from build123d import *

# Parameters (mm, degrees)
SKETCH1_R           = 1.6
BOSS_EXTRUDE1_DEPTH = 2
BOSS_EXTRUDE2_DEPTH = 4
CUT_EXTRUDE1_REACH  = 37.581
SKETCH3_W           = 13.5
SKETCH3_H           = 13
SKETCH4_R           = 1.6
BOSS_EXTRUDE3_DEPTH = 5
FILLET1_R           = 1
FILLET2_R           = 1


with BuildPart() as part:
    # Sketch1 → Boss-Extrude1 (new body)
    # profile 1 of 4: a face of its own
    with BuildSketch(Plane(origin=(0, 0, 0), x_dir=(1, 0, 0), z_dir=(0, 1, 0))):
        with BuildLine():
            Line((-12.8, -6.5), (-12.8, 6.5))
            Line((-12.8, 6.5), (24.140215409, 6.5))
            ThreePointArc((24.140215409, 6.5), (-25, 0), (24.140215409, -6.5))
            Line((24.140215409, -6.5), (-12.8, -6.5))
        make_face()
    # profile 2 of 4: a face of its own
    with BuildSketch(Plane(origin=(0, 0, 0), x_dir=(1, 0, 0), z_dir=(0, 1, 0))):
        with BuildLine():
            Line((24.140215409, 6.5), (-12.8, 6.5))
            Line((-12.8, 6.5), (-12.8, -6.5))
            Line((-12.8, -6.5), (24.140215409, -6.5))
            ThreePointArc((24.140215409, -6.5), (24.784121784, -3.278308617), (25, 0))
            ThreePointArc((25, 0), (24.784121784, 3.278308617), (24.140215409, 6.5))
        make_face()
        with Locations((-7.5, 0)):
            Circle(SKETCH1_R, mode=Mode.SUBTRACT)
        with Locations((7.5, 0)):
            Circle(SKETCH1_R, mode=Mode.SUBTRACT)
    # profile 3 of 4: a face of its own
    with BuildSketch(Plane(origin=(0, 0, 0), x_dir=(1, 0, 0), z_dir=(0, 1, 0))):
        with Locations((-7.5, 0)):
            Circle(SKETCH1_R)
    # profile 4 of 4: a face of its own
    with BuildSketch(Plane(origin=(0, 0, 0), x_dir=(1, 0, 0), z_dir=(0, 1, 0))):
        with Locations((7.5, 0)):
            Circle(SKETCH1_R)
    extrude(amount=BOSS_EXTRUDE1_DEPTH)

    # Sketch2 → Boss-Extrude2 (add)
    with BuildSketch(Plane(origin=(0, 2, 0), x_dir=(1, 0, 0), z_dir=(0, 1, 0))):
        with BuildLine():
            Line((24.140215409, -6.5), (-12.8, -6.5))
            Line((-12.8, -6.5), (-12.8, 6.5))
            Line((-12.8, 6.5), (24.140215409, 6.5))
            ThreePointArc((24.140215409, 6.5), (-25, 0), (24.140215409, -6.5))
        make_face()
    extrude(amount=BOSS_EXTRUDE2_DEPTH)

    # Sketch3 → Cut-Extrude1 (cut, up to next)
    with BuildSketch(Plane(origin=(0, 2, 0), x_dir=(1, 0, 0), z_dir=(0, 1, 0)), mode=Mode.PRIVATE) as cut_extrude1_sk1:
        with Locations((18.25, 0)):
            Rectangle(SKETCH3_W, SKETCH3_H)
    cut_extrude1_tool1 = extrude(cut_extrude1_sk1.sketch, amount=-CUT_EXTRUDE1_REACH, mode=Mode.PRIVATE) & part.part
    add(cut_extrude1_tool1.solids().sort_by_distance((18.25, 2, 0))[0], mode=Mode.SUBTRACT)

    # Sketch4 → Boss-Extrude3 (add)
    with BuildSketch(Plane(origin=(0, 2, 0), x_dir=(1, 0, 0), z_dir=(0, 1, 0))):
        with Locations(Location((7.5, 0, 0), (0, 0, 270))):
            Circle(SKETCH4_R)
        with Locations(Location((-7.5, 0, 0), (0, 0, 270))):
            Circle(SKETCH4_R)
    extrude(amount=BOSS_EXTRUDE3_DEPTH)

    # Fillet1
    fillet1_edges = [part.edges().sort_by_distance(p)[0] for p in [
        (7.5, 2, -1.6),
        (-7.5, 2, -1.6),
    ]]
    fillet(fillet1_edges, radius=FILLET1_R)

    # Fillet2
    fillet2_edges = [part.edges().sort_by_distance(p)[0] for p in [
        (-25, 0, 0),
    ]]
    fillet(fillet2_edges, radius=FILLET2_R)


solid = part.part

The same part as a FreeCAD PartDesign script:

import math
import FreeCAD as App
import Part
import Sketcher

V = App.Vector


def edges_at(feature, points):
    """Names of the edges that pass closest to the given points."""
    edges = feature.Shape.Edges
    near = lambda p: min(range(len(edges)), key=lambda i: edges[i].distToShape(Part.Vertex(*p))[0])
    return sorted({f"Edge{near(p) + 1}" for p in points})

doc = App.newDocument("Part")
body = doc.addObject("PartDesign::Body", "Body")

# Sketch on XZ plane
sketch1 = body.newObject("Sketcher::SketchObject", "Sketch")
sketch1.AttachmentSupport = (doc.getObject("XZ_Plane"), [""])
sketch1.MapMode = "FlatFace"
sketch1.addGeometry([
    Part.ArcOfCircle(Part.Circle(V(0, 0, 0), V(0, 0, 1), 25), math.radians(15), math.radians(345)),
    Part.ArcOfCircle(Part.Circle(V(0, 0, 0), V(0, 0, 1), 25), math.radians(0), math.radians(15.07)),
    Part.ArcOfCircle(Part.Circle(V(0, 0, 0), V(0, 0, 1), 25), math.radians(-15.07), math.radians(0)),
], False)
sketch1.addConstraint([
    Sketcher.Constraint("Tangent", 0, 1, 1, 2),
    Sketcher.Constraint("Tangent", 1, 1, 2, 2),
    Sketcher.Constraint("Tangent", 2, 1, 0, 2),
    Sketcher.Constraint("Coincident", 0, 3, -1, 1),
    Sketcher.Constraint("PointOnObject", 1, 1, -1),
    Sketcher.Constraint("Vertical", 0, 1, 2, 1),
    Sketcher.Constraint("Radius", 0, 25.0),
    Sketcher.Constraint("DistanceY", 2, 1, 0, 1, 13.0),
])
pad1 = body.newObject("PartDesign::Pad", "Pad")
pad1.Profile = sketch1
pad1.Length = 2
pad1.Reversed = True

# Sketch on XZ plane
sketch2 = body.newObject("Sketcher::SketchObject", "Sketch001")
sketch2.AttachmentSupport = (doc.getObject("XZ_Plane"), [""])
sketch2.MapMode = "FlatFace"
sketch2.AttachmentOffset = App.Placement(V(0, 0, -2), App.Rotation())
sketch2.addGeometry([
    Part.LineSegment(V(24, 6, 0), V(-13, 6, 0)),
    Part.LineSegment(V(-13, 6, 0), V(-13, -6, 0)),
    Part.LineSegment(V(-13, -6, 0), V(24, -6, 0)),
    Part.ArcOfCircle(Part.Circle(V(0, 0, 0), V(0, 0, 1), 25), math.radians(15), math.radians(345)),
], False)
sketch2.addConstraint([
    Sketcher.Constraint("Coincident", 0, 2, 1, 1),
    Sketcher.Constraint("Coincident", 1, 2, 2, 1),
    Sketcher.Constraint("Coincident", 2, 2, 3, 2),
    Sketcher.Constraint("Coincident", 3, 1, 0, 1),
    Sketcher.Constraint("Horizontal", 0),
    Sketcher.Constraint("Vertical", 1),
    Sketcher.Constraint("Horizontal", 2),
    Sketcher.Constraint("Coincident", 3, 3, -1, 1),
    Sketcher.Constraint("Vertical", 2, 2, 3, 1),
    Sketcher.Constraint("Radius", 3, 25.0),
    Sketcher.Constraint("DistanceY", 1, 2, 1, 1, 13.0),
    Sketcher.Constraint("DistanceX", 0, 2, -1, 1, 12.8),
])
pad2 = body.newObject("PartDesign::Pad", "Pad001")
pad2.Profile = sketch2
pad2.Length = 4
pad2.Reversed = True

# Sketch on XZ plane
sketch3 = body.newObject("Sketcher::SketchObject", "Sketch002")
sketch3.AttachmentSupport = (doc.getObject("XZ_Plane"), [""])
sketch3.MapMode = "FlatFace"
sketch3.AttachmentOffset = App.Placement(V(0, 0, -2), App.Rotation())
sketch3.addGeometry([
    Part.LineSegment(V(12, -6, 0), V(12, 6, 0)),
    Part.LineSegment(V(12, 6, 0), V(25, 6, 0)),
    Part.LineSegment(V(25, 6, 0), V(25, -6, 0)),
    Part.LineSegment(V(25, -6, 0), V(12, -6, 0)),
], False)
sketch3.addConstraint([
    Sketcher.Constraint("Coincident", 0, 2, 1, 1),
    Sketcher.Constraint("Coincident", 1, 2, 2, 1),
    Sketcher.Constraint("Coincident", 2, 2, 3, 1),
    Sketcher.Constraint("Coincident", 3, 2, 0, 1),
    Sketcher.Constraint("Vertical", 0),
    Sketcher.Constraint("Horizontal", 1),
    Sketcher.Constraint("Vertical", 2),
    Sketcher.Constraint("Horizontal", 3),
    Sketcher.Constraint("DistanceY", 0, 1, 0, 2, 13.0),
    Sketcher.Constraint("DistanceX", 1, 1, 1, 2, 13.5),
    Sketcher.Constraint("DistanceX", -1, 1, 1, 2, 25.0),
    Sketcher.Constraint("DistanceY", -1, 1, 0, 2, 6.5),
])
pocket1 = body.newObject("PartDesign::Pocket", "Pocket")
pocket1.Profile = sketch3
pocket1.Type = "UpToFirst"
pocket1.Reversed = True

# Sketch on XZ plane
sketch4 = body.newObject("Sketcher::SketchObject", "Sketch003")
sketch4.AttachmentSupport = (doc.getObject("XZ_Plane"), [""])
sketch4.MapMode = "FlatFace"
sketch4.AttachmentOffset = App.Placement(V(0, 0, -2), App.Rotation())
sketch4.addGeometry([
    Part.Circle(V(7.5, 0, 0), V(0, 0, 1), 1.6),
    Part.Circle(V(-7.5, 0, 0), V(0, 0, 1), 1.6),
], False)
sketch4.addConstraint([
    Sketcher.Constraint("Equal", 0, 1),
    Sketcher.Constraint("Symmetric", 0, 3, 1, 3, -1, 1),
    Sketcher.Constraint("PointOnObject", 0, 3, -1),
    Sketcher.Constraint("Diameter", 0, 3.2),
    Sketcher.Constraint("DistanceX", 1, 3, 0, 3, 15.0),
])
pad3 = body.newObject("PartDesign::Pad", "Pad002")
pad3.Profile = sketch4
pad3.Length = 5
pad3.Reversed = True
doc.recompute()

fillet = body.newObject("PartDesign::Fillet", "Fillet")
fillet.Base = (pad3, edges_at(pad3, [(7.5, 2, -1.6), (-7.5, 2, -1.6)]))
fillet.Radius = 1
doc.recompute()

fillet2 = body.newObject("PartDesign::Fillet", "Fillet001")
fillet2.Base = (fillet, edges_at(fillet, [(-25, 0, 0)]))
fillet2.Radius = 1

doc.recompute()
